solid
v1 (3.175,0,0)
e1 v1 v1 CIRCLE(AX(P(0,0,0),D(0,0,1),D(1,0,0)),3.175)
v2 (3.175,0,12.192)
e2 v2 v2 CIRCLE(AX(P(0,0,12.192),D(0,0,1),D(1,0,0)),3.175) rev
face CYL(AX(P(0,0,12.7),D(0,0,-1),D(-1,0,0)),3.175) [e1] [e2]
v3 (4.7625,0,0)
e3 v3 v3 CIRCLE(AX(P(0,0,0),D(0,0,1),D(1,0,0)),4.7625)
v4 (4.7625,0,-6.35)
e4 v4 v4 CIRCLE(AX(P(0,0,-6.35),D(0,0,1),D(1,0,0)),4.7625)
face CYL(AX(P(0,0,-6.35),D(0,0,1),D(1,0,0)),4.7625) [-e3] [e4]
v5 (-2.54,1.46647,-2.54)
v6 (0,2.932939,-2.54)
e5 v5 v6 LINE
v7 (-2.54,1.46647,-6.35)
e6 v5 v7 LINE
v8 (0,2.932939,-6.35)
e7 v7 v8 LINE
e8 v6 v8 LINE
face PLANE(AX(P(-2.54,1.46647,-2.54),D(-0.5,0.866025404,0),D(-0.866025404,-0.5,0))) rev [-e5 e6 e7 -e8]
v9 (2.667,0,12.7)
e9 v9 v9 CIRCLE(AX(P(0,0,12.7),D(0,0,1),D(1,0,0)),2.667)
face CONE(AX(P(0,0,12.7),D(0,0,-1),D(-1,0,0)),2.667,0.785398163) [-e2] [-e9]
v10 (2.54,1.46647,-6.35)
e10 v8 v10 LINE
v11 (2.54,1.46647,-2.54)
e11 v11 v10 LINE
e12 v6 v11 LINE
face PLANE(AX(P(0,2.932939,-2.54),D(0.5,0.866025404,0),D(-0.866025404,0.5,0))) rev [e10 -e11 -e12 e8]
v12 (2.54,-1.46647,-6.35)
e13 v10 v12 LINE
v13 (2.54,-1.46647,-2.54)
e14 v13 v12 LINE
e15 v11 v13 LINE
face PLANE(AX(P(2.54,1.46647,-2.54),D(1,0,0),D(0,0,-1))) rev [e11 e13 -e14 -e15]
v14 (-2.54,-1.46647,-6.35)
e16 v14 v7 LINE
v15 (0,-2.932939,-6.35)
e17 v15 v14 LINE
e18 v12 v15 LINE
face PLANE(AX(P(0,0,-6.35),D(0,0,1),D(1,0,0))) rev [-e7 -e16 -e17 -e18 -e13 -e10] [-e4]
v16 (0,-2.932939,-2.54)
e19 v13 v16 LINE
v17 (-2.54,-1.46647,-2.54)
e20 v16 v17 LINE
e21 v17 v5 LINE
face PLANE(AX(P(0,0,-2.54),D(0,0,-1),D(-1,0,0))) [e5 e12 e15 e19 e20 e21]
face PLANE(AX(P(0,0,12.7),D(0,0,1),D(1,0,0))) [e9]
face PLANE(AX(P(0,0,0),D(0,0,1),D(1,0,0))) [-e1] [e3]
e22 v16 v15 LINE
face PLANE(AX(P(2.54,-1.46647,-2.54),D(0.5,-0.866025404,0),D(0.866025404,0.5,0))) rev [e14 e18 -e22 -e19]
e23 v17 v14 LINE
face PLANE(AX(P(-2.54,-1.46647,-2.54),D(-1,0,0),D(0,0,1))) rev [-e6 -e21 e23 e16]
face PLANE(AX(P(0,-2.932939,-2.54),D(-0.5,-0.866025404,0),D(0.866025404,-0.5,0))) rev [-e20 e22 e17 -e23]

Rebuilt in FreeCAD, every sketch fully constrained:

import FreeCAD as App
import Part
import Sketcher
from FreeCAD import Vector
Q = App.Units.Quantity


def edges_at(feature, points):
    """Names of the edges that pass closest to the given points."""
    edges = feature.Shape.Edges
    near = lambda p: min(range(len(edges)), key=lambda i: edges[i].distToShape(Part.Vertex(*p))[0])
    return sorted({f"Edge{near(p) + 1}" for p in points})

doc = App.newDocument("Part")
body = doc.addObject("PartDesign::Body", "Body")

sketch1 = body.newObject("Sketcher::SketchObject", "Sketch")
sketch1.AttachmentSupport = (doc.getObject("XY_Plane"), [""])
sketch1.MapMode = "FlatFace"
sketch1.addGeometry(Part.Circle(Vector(0, 0, 0), Vector(0, 0, 1), 4.8), False)
sketch1.addConstraint([
    Sketcher.Constraint("Coincident", 0, 3, -1, 1),
    Sketcher.Constraint("Diameter", 0, Q("0.375 in")),
])
pad1 = body.newObject("PartDesign::Pad", "Pad")
pad1.Profile = sketch1
pad1.Length = Q("0.25 in")
pad1.Reversed = True

sketch2 = body.newObject("Sketcher::SketchObject", "Sketch001")
sketch2.AttachmentSupport = (doc.getObject("XY_Plane"), [""])
sketch2.MapMode = "FlatFace"
sketch2.addGeometry(Part.Circle(Vector(0, 0, 0), Vector(0, 0, 1), 3.2), False)
sketch2.addConstraint([
    Sketcher.Constraint("Coincident", 0, 3, -1, 1),
    Sketcher.Constraint("Diameter", 0, Q("0.25 in")),
])
pad2 = body.newObject("PartDesign::Pad", "Pad001")
pad2.Profile = sketch2
pad2.Length = Q("0.5 in")
doc.recompute()

chamfer = body.newObject("PartDesign::Chamfer", "Chamfer")
chamfer.Base = (pad2, edges_at(pad2, [(-3.175, 0, 12.7)]))
chamfer.Size = Q("0.02 in")

sketch3 = body.newObject("Sketcher::SketchObject", "Sketch002")
sketch3.AttachmentSupport = (doc.getObject("XY_Plane"), [""])
sketch3.MapMode = "FlatFace"
sketch3.AttachmentOffset = App.Placement(Vector(0, 0, -0.25 * 25.4), App.Rotation())
sketch3.addGeometry([
    Part.LineSegment(Vector(0, 2.9, 0), Vector(2.5, 1.5, 0)),
    Part.LineSegment(Vector(2.5, 1.5, 0), Vector(2.5, -1.5, 0)),
    Part.LineSegment(Vector(2.5, -1.5, 0), Vector(0, -2.9, 0)),
    Part.LineSegment(Vector(0, -2.9, 0), Vector(-2.5, -1.5, 0)),
    Part.LineSegment(Vector(-2.5, -1.5, 0), Vector(-2.5, 1.5, 0)),
    Part.LineSegment(Vector(-2.5, 1.5, 0), Vector(0, 2.9, 0)),
], False)
sketch3.addConstraint([
    Sketcher.Constraint("Coincident", 0, 2, 1, 1),
    Sketcher.Constraint("Coincident", 1, 2, 2, 1),
    Sketcher.Constraint("Coincident", 2, 2, 3, 1),
    Sketcher.Constraint("Coincident", 3, 2, 4, 1),
    Sketcher.Constraint("Coincident", 4, 2, 5, 1),
    Sketcher.Constraint("Coincident", 5, 2, 0, 1),
    Sketcher.Constraint("Vertical", 1),
    Sketcher.Constraint("Vertical", 4),
    Sketcher.Constraint("Symmetric", 0, 2, 3, 2, -1, 1),
    Sketcher.Constraint("Symmetric", 2, 2, 5, 2, -1, 1),
    Sketcher.Constraint("PointOnObject", 2, 2, -2),
    Sketcher.Constraint("Parallel", 2, 5),
    Sketcher.Constraint("Horizontal", 1, 2, 3, 2),
    Sketcher.Constraint("Angle", 0, Q("-30 deg")),
    Sketcher.Constraint("DistanceX", -1, 1, 0, 2, Q("0.1 in")),
    Sketcher.Constraint("DistanceY", 1, 2, 1, 1, 2.932939),
])
pocket1 = body.newObject("PartDesign::Pocket", "Pocket")
pocket1.Profile = sketch3
pocket1.Length = Q("0.15 in")
pocket1.Reversed = True

doc.recompute()
